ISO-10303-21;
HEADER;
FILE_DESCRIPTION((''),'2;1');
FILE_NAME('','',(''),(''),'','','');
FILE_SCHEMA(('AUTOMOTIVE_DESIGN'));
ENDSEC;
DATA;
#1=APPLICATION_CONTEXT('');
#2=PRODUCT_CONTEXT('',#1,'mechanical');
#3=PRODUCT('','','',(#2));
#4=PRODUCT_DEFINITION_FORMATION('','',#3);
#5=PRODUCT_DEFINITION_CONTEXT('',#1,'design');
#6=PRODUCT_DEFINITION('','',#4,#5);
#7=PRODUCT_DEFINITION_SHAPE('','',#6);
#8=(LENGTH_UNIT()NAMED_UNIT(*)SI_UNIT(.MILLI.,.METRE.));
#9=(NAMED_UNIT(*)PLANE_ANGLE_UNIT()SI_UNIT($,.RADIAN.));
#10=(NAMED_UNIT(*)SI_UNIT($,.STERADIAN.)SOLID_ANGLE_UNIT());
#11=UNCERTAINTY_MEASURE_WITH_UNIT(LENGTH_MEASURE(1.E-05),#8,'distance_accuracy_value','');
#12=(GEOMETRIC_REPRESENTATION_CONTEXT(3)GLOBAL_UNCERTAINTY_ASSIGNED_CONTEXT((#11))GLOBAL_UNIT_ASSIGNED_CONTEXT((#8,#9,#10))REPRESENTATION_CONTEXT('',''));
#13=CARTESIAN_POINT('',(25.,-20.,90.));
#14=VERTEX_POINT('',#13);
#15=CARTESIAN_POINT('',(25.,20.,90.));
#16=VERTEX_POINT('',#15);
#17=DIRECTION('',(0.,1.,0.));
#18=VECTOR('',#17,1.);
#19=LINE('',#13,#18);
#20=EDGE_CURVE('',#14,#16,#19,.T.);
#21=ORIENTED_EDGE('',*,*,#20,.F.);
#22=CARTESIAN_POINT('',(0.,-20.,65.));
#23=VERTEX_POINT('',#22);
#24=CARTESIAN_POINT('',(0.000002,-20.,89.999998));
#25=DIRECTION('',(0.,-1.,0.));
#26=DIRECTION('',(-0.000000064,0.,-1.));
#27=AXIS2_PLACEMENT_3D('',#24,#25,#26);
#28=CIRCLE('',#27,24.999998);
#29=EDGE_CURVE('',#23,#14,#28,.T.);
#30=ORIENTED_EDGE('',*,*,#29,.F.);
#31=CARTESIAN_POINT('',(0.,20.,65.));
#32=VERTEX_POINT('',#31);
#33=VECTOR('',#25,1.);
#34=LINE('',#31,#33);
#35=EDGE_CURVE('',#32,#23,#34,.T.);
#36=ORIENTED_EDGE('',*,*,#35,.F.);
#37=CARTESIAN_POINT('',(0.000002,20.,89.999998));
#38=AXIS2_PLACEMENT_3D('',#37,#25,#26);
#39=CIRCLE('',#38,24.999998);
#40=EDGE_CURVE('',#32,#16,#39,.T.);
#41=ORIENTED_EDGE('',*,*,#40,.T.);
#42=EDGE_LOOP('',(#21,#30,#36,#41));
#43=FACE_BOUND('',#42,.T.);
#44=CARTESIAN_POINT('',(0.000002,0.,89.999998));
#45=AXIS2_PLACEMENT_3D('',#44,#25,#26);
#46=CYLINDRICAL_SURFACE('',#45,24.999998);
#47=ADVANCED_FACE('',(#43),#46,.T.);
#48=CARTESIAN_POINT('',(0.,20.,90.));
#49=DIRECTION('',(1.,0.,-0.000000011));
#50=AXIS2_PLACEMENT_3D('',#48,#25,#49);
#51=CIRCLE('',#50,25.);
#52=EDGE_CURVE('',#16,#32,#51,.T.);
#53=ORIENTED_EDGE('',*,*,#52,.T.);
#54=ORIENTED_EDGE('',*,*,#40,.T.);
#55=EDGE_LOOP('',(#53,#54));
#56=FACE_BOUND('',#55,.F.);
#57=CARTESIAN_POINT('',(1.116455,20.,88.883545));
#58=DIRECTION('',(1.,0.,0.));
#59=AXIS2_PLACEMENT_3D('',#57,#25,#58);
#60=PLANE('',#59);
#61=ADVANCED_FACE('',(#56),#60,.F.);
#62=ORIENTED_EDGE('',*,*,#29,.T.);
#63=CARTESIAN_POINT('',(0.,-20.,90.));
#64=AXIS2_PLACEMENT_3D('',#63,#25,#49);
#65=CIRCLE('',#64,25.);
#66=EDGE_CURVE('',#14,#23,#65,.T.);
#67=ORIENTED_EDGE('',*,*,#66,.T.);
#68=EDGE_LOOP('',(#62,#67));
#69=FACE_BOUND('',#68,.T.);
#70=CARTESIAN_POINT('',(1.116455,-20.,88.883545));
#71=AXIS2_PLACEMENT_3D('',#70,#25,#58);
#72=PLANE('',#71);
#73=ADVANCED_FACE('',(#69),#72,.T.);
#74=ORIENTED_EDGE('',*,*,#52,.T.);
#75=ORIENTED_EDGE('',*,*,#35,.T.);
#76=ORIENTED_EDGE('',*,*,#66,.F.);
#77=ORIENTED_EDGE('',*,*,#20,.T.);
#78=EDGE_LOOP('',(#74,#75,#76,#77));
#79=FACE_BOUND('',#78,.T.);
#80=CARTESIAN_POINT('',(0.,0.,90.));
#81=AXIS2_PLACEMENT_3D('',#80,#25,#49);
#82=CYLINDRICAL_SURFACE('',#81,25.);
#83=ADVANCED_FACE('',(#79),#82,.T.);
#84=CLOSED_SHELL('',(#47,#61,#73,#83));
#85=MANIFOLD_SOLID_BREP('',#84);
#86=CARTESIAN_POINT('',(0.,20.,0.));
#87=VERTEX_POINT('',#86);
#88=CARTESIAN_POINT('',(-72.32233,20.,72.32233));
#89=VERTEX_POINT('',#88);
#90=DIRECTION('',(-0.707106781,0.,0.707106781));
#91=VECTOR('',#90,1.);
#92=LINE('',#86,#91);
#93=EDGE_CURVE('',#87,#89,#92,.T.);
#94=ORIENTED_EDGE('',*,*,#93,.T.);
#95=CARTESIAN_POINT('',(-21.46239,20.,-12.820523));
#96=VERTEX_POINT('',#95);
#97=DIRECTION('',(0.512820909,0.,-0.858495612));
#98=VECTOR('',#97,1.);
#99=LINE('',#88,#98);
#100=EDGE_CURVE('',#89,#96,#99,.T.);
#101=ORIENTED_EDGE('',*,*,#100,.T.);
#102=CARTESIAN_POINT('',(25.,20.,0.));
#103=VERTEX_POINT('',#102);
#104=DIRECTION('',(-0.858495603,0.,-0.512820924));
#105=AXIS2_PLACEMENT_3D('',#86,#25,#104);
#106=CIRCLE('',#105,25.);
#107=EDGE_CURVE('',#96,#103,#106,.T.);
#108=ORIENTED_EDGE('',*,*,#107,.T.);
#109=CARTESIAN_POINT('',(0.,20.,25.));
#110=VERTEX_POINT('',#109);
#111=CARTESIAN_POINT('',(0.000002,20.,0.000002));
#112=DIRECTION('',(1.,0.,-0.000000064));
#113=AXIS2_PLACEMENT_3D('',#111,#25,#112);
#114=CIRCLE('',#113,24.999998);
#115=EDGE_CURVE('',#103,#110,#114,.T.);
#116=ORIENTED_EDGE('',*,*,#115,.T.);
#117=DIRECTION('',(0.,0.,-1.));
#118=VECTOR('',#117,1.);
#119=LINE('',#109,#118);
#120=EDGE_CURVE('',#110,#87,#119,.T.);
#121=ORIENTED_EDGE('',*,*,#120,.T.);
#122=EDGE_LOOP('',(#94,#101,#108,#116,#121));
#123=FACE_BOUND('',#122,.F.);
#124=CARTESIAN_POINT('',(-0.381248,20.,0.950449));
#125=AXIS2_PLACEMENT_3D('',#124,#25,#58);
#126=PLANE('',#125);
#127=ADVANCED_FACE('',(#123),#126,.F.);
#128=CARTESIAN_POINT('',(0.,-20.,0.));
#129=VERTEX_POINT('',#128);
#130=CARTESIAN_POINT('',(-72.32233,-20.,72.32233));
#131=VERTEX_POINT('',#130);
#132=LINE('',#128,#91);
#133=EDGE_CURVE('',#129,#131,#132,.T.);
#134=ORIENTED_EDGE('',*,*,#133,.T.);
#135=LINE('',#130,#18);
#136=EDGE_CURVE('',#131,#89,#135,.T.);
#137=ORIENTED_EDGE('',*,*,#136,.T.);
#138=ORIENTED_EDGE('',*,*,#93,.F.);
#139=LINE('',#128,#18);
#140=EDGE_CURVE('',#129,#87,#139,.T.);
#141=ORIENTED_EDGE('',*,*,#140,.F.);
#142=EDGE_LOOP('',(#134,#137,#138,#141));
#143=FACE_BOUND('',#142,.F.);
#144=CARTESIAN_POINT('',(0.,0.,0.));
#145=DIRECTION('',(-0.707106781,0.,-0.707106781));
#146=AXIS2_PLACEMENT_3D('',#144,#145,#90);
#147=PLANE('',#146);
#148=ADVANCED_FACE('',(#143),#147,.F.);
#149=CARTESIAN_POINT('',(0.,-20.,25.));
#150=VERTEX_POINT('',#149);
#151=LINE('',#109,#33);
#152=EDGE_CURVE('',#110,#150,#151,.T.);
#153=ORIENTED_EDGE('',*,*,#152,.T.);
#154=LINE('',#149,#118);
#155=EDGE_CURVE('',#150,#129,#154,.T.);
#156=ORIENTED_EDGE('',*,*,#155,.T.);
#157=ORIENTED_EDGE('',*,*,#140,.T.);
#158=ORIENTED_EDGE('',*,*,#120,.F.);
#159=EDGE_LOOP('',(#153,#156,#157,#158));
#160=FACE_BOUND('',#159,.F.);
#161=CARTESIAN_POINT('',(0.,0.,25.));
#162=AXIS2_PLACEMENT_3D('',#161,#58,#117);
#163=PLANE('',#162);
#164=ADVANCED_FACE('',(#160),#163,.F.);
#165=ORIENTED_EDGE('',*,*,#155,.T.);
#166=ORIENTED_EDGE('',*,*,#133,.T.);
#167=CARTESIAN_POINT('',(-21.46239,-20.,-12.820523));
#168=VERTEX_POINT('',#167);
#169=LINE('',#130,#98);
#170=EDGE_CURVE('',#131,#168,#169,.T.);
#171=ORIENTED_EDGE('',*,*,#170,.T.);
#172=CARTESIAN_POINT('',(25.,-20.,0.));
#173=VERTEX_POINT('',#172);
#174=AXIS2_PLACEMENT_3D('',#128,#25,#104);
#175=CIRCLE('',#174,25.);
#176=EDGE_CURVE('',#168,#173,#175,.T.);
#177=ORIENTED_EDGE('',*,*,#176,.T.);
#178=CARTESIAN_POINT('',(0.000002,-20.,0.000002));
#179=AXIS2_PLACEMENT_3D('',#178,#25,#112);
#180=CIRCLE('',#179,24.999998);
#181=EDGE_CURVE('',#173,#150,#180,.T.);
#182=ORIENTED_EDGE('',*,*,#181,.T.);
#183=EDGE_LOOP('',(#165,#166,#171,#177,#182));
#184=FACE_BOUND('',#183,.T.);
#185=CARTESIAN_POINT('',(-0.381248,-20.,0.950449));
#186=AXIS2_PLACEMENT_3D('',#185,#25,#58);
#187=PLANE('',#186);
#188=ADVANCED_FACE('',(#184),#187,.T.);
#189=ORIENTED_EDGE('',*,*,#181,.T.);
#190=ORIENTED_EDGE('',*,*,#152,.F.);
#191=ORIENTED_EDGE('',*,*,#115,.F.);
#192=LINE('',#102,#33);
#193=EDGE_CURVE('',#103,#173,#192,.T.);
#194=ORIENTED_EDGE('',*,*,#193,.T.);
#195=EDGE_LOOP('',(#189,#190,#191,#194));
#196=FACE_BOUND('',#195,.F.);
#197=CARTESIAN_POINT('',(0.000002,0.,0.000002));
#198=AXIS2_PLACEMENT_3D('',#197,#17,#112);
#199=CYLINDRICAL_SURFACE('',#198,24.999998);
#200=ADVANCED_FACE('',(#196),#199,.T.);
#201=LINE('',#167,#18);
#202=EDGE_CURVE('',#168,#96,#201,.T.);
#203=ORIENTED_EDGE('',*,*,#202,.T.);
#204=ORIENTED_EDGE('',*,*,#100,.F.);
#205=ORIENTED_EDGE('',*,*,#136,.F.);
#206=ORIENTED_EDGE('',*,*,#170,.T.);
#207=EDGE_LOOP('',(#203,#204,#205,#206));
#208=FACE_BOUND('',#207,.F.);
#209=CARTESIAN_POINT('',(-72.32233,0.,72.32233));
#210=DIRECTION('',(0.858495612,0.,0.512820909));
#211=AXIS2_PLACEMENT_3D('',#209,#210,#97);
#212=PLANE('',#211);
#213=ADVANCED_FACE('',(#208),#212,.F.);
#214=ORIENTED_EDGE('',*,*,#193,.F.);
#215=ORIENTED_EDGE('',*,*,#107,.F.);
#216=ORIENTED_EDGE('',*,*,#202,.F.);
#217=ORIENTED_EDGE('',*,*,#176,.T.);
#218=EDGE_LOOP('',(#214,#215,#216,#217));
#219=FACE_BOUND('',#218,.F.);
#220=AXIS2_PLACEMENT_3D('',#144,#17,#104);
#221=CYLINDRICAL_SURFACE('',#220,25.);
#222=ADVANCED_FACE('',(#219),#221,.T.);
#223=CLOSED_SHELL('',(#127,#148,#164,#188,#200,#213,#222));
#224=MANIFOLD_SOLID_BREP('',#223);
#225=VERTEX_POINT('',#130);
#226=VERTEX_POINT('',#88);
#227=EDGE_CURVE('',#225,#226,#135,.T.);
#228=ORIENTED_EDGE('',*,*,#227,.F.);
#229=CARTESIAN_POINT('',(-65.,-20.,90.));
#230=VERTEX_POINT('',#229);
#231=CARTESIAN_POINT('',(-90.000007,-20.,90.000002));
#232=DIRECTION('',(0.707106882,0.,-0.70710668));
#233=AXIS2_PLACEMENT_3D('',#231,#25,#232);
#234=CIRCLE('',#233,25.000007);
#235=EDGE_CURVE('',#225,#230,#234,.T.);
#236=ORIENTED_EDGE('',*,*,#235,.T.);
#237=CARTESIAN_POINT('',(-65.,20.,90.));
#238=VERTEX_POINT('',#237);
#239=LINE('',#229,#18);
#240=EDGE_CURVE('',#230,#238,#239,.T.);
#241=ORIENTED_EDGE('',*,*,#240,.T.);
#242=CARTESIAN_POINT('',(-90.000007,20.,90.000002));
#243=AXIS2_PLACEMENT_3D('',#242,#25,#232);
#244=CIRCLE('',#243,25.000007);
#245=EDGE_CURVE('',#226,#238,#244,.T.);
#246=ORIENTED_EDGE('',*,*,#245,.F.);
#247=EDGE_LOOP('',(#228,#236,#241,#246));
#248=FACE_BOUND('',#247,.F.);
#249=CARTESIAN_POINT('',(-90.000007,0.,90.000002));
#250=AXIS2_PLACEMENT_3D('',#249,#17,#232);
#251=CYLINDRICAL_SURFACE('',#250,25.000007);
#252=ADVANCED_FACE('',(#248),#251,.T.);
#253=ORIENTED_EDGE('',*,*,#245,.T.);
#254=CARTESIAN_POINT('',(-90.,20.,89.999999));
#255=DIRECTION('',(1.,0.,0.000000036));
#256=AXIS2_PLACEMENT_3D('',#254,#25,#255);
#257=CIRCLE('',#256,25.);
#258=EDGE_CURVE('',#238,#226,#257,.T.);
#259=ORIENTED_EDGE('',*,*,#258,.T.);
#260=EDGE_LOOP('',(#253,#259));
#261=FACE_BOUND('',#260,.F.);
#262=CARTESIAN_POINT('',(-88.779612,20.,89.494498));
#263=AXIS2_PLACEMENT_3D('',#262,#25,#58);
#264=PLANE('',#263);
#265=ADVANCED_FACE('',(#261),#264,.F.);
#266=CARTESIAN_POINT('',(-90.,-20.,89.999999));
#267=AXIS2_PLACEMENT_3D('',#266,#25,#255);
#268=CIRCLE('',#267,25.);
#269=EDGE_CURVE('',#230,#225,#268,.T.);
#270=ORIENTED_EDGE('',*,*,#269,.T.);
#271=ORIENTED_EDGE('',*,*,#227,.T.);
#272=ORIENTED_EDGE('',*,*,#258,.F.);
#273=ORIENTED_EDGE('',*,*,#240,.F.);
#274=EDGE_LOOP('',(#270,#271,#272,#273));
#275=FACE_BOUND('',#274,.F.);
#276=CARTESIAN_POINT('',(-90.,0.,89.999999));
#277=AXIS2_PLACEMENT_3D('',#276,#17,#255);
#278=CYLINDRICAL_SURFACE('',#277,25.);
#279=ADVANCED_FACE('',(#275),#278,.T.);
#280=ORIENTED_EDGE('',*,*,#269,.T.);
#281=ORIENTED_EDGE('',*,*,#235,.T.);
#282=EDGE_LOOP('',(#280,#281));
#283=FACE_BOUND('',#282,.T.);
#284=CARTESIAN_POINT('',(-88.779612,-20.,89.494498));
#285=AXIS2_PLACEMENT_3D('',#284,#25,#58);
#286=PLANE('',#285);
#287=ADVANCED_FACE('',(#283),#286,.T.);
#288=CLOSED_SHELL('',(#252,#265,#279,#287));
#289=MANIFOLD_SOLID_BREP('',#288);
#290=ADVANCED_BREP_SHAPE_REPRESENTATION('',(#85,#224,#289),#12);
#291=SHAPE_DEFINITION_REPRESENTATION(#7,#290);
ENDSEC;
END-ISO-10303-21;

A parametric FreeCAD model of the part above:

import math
import FreeCAD as App
import Part
import Sketcher
Q = App.Units.Quantity

doc = App.newDocument("Part")
body = doc.addObject("PartDesign::Body", "Body")
body.AllowCompound = True

# Sketch on XZ plane
sketch1 = body.newObject("Sketcher::SketchObject", "Sketch")
sketch1.AttachmentSupport = (doc.getObject("XZ_Plane"), [""])
sketch1.MapMode = "FlatFace"
sketch1.addGeometry(Part.ArcOfCircle(Part.Circle(App.Vector(0, 0, 0), App.Vector(0, 0, 1), 25), math.radians(-149.148087), math.radians(0)), False)
sketch1.addGeometry(Part.ArcOfCircle(Part.Circle(App.Vector(0.000002, 0.000002, 0), App.Vector(0, 0, 1), 24.999998), math.radians(-0.000004), math.radians(90.000004)), False)
sketch1.addGeometry(Part.LineSegment(App.Vector(0, 25, 0), App.Vector(0, 0, 0)), False)
sketch1.addGeometry(Part.LineSegment(App.Vector(0, 0, 0), App.Vector(-72.32233, 72.32233, 0)), False)
sketch1.addGeometry(Part.LineSegment(App.Vector(-72.32233, 72.32233, 0), App.Vector(-21.46239, -12.820523, 0)), False)
sketch1.addGeometry(Part.ArcOfCircle(Part.Circle(App.Vector(-90, 89.999999, 0), App.Vector(0, 0, 1), 25), math.radians(0.000002), math.radians(315.000002)), False)
sketch1.addGeometry(Part.ArcOfCircle(Part.Circle(App.Vector(-90.000007, 90.000002, 0), App.Vector(0, 0, 1), 25.000007), math.radians(-44.999992), math.radians(-0.000004)), False)
sketch1.addGeometry(Part.ArcOfCircle(Part.Circle(App.Vector(0, 90, 0), App.Vector(0, 0, 1), 25), math.radians(-0.000001), math.radians(270.000001)), False)
sketch1.addGeometry(Part.ArcOfCircle(Part.Circle(App.Vector(0.000002, 89.999998, 0), App.Vector(0, 0, 1), 24.999998), math.radians(-90.000004), math.radians(0.000004)), False)
sketch1.addConstraint(Sketcher.Constraint("Tangent", 0, 2, 1, 1))
sketch1.addConstraint(Sketcher.Constraint("Coincident", 1, 2, 2, 1))
sketch1.addConstraint(Sketcher.Constraint("Coincident", 2, 2, 3, 1))
sketch1.addConstraint(Sketcher.Constraint("Coincident", 3, 2, 4, 1))
sketch1.addConstraint(Sketcher.Constraint("Tangent", 4, 2, 0, 1))
sketch1.addConstraint(Sketcher.Constraint("Tangent", 5, 1, 6, 2))
sketch1.addConstraint(Sketcher.Constraint("Coincident", 6, 1, 5, 2))
sketch1.addConstraint(Sketcher.Constraint("Tangent", 7, 1, 8, 2))
sketch1.addConstraint(Sketcher.Constraint("Coincident", 8, 1, 7, 2))
sketch1.addConstraint(Sketcher.Constraint("Vertical", 2))
sketch1.addConstraint(Sketcher.Constraint("Coincident", 0, 3, -1, 1))
sketch1.addConstraint(Sketcher.Constraint("Coincident", 2, 2, -1, 1))
sketch1.addConstraint(Sketcher.Constraint("Coincident", 6, 1, 3, 2))
sketch1.addConstraint(Sketcher.Constraint("Equal", 0, 1))
sketch1.addConstraint(Sketcher.Constraint("Equal", 1, 5))
sketch1.addConstraint(Sketcher.Constraint("Equal", 5, 7))
sketch1.addConstraint(Sketcher.Constraint("PointOnObject", 7, 3, -2))
sketch1.addConstraint(Sketcher.Constraint("PointOnObject", 0, 2, -1))
sketch1.addConstraint(Sketcher.Constraint("PointOnObject", 8, 1, -2))
sketch1.addConstraint(Sketcher.Constraint("Horizontal", 6, 3, 7, 3))
sketch1.addConstraint(Sketcher.Constraint("Horizontal", 8, 3, 5, 1))
sketch1.addConstraint(Sketcher.Constraint("Horizontal", 5, 1, 7, 1))
sketch1.addConstraint(Sketcher.Constraint("Radius", 0, Q("25 mm")))
sketch1.addConstraint(Sketcher.Constraint("Angle", 3, Q("135 deg")))
sketch1.addConstraint(Sketcher.Constraint("DistanceX", 5, 3, -1, 1, Q("90 mm")))
sketch1.addConstraint(Sketcher.Constraint("DistanceY", -1, 1, 5, 3, Q("89.999999 mm")))
pad1 = body.newObject("PartDesign::Pad", "Pad")
pad1.Profile = sketch1
pad1.Length = 40
pad1.Midplane = True

doc.recompute()
